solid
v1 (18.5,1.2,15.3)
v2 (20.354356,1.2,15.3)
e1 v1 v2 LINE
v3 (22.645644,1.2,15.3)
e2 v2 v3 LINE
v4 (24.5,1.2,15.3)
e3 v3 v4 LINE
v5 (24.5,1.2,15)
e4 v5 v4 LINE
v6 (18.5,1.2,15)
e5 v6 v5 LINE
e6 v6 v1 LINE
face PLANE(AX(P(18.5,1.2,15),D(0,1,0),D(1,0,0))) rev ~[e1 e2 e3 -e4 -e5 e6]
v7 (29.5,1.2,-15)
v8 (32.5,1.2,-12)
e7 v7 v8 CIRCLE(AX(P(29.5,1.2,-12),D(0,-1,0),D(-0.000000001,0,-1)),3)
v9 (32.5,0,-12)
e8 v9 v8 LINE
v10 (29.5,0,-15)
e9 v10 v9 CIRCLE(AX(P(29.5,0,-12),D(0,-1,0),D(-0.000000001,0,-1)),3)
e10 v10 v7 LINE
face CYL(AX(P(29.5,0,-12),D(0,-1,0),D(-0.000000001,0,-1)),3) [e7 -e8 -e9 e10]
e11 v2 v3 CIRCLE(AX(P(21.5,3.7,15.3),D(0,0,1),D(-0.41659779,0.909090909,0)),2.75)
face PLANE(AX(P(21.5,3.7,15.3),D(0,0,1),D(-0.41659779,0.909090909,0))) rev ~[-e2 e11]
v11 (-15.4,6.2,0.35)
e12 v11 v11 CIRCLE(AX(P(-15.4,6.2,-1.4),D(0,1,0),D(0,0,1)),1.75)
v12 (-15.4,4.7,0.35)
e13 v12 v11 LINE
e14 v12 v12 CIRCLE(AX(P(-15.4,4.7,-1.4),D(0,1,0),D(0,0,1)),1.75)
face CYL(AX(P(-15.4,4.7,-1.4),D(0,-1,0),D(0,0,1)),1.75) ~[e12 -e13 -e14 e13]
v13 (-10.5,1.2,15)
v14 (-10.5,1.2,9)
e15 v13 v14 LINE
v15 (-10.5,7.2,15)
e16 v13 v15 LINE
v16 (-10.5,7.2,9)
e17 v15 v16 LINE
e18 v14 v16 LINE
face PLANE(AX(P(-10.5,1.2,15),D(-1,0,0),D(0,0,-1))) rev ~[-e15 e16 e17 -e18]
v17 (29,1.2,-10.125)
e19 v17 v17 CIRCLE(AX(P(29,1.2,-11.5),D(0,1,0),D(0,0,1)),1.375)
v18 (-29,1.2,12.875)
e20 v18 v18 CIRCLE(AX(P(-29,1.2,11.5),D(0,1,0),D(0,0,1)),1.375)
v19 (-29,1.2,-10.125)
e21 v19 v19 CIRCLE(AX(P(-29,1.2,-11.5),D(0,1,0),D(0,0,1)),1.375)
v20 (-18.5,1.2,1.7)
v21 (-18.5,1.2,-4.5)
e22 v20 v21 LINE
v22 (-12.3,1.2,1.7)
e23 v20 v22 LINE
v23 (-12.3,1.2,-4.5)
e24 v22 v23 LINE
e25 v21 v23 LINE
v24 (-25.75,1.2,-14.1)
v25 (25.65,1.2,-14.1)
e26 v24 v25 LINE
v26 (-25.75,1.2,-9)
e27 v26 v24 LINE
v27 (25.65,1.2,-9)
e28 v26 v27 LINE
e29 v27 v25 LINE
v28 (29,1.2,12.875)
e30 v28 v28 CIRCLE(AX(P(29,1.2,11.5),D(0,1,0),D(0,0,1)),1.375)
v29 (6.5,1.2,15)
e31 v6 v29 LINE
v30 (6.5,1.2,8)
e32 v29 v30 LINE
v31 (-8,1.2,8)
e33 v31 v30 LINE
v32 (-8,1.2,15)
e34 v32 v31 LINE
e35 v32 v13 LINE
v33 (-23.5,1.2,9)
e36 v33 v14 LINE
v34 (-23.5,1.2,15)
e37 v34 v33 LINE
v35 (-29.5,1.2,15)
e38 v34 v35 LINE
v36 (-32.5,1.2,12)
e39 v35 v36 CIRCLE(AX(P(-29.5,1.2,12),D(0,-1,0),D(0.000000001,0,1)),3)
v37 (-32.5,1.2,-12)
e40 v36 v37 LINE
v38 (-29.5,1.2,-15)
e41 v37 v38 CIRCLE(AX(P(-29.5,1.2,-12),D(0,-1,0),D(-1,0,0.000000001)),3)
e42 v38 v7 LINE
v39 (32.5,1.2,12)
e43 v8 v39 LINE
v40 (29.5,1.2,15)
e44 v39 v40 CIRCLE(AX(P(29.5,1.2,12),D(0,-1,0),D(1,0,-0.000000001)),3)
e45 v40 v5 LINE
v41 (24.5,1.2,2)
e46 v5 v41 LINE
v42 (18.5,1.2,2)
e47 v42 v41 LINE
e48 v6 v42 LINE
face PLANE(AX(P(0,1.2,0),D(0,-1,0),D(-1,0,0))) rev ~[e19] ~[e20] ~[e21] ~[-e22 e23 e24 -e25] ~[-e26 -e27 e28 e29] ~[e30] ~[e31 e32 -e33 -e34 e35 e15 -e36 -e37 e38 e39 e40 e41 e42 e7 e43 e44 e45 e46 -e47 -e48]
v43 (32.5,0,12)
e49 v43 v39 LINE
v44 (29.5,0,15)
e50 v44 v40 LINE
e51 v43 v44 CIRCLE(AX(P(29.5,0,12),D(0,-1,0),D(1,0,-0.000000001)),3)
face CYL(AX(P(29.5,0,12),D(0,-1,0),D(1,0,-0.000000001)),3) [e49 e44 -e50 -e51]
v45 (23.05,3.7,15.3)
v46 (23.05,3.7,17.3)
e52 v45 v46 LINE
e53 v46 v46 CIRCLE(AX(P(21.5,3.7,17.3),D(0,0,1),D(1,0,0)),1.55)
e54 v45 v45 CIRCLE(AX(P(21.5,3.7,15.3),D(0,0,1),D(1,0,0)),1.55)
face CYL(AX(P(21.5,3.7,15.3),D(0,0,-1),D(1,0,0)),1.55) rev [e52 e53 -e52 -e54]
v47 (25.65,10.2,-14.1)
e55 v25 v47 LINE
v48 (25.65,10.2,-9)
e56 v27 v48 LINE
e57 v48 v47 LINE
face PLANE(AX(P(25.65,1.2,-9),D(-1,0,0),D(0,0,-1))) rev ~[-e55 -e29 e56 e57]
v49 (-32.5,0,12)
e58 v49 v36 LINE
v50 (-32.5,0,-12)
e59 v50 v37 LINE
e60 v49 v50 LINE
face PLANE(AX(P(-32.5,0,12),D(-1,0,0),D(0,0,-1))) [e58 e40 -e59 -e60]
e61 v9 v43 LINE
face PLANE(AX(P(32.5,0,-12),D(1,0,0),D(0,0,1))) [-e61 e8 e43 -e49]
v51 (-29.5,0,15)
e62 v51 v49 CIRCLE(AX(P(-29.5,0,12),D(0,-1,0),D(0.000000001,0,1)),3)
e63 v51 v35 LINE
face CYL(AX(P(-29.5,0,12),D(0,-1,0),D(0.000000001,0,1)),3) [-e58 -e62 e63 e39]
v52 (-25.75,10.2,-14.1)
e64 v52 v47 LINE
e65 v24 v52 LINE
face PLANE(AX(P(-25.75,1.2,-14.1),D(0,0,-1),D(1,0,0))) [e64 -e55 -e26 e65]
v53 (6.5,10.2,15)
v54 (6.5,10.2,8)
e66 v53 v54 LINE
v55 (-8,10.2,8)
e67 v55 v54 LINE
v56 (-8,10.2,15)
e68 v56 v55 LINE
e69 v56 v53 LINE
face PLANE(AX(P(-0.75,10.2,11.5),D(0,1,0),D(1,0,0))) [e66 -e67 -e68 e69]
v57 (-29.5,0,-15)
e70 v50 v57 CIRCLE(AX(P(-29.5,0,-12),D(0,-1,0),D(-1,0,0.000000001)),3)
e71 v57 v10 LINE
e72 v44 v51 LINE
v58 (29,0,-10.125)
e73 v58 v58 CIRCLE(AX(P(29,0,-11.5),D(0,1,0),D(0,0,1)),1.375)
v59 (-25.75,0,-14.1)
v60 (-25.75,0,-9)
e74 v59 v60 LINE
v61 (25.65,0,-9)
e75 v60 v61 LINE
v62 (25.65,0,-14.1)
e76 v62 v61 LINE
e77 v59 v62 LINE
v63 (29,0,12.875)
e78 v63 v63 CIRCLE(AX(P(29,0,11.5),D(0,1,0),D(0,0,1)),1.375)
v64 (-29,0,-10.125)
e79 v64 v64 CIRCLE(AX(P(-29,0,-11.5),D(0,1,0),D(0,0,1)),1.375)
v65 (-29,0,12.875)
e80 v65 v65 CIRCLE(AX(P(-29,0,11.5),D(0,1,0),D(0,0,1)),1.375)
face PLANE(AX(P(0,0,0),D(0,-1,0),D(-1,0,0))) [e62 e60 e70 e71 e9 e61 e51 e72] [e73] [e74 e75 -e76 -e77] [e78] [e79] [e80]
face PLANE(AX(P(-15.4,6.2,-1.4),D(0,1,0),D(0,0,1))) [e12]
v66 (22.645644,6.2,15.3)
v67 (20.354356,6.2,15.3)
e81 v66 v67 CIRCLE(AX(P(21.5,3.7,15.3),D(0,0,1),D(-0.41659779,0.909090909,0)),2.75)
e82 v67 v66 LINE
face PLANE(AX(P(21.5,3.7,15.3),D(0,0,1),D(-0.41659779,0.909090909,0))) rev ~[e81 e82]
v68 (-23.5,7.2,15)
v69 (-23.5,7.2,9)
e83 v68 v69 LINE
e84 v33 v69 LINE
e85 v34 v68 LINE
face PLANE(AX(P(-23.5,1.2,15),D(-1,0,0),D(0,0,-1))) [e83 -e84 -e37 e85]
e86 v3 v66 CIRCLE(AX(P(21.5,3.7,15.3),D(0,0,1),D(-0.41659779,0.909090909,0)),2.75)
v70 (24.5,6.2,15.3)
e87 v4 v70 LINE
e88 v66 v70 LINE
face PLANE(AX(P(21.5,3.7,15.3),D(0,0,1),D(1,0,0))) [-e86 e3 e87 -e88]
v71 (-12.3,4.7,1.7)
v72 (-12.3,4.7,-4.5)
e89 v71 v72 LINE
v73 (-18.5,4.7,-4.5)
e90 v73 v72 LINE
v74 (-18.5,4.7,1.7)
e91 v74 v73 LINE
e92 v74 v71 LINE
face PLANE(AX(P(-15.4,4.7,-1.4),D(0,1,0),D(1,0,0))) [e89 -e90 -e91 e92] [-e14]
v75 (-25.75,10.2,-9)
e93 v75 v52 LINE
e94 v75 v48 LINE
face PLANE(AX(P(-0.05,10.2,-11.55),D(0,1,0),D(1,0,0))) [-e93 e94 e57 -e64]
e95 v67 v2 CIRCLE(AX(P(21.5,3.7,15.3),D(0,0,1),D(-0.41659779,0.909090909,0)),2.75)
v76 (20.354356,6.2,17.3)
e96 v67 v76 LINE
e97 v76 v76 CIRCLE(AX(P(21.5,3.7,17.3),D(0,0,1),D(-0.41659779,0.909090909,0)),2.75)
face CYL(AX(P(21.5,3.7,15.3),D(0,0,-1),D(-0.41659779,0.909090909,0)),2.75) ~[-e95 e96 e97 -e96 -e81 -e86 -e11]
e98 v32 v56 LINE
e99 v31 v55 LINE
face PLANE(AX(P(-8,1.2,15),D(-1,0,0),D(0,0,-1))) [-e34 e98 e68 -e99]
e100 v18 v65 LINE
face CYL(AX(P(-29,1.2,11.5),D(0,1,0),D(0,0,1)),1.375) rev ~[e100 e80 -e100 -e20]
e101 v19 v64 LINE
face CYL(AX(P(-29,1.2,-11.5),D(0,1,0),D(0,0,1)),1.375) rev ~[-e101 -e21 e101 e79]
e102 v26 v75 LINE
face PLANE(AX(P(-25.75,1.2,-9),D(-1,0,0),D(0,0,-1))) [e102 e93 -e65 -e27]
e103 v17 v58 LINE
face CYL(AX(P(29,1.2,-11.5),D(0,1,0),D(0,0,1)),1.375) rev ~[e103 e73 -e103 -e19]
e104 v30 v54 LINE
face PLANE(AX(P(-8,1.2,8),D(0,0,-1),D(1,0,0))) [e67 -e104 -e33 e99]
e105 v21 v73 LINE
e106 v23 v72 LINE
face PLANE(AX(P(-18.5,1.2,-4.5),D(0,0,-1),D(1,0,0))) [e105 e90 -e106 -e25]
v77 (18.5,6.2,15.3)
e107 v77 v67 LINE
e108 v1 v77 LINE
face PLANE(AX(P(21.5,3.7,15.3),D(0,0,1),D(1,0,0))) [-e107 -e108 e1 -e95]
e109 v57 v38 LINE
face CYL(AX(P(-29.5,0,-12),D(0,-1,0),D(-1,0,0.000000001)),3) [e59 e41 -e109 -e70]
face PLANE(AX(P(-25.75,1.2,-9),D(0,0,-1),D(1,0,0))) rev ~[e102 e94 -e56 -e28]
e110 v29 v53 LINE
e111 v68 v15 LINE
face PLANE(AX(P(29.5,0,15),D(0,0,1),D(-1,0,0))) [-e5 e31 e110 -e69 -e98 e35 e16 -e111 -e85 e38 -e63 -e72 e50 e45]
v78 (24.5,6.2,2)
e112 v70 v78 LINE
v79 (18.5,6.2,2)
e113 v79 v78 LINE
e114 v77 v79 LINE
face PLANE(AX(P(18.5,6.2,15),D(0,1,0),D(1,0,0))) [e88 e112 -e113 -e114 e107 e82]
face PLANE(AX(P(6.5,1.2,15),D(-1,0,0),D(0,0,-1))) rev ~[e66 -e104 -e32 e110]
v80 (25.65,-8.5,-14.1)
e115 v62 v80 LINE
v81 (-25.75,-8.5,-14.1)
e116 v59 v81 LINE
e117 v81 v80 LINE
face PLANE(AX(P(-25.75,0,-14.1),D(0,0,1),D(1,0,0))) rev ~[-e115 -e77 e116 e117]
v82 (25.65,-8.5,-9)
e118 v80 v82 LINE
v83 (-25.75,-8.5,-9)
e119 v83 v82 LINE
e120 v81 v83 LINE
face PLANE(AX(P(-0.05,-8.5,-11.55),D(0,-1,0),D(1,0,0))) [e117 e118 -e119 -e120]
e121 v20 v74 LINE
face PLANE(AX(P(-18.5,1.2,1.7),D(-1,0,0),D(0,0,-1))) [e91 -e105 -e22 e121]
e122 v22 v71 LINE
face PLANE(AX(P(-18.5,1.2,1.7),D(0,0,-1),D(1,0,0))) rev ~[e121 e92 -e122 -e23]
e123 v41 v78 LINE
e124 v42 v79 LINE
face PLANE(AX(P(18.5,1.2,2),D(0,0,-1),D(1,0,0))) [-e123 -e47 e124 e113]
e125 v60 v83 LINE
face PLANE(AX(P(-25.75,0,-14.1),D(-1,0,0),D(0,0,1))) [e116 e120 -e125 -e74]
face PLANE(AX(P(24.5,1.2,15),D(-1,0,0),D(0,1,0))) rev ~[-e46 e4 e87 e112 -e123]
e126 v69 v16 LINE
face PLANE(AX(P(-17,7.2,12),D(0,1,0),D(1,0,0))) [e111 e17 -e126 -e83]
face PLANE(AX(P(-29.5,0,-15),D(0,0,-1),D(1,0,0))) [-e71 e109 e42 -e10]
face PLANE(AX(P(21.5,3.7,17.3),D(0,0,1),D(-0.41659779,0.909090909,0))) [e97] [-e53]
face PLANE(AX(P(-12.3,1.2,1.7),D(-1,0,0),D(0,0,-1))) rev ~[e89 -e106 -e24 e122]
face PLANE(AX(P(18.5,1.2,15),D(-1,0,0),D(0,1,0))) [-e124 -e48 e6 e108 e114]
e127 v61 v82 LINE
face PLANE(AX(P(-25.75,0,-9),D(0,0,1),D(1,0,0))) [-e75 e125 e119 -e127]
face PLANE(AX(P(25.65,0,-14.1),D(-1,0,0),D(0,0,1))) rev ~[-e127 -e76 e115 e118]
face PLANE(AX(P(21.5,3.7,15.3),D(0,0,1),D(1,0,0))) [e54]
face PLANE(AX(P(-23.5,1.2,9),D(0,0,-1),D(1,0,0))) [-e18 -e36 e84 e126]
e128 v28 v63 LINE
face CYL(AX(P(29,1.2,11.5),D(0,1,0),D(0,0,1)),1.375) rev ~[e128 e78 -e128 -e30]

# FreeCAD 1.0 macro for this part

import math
import FreeCAD as App
import Part
import Sketcher

V = App.Vector
Q = App.Units.Quantity


def add_polygon(sketch, points):
    """Adds a closed chain of lines whose ends are joined by coincident constraints."""
    first, n = sketch.GeometryCount, len(points)
    for a, b in zip(points, points[1:] + points[:1]):
        sketch.addGeometry(Part.LineSegment(App.Vector(*a, 0), App.Vector(*b, 0)), False)
    for i in range(n):
        sketch.addConstraint(Sketcher.Constraint("Coincident", first + i, 2, first + (i + 1) % n, 1))

doc = App.newDocument("Part")
body = doc.addObject("PartDesign::Body", "Body")

# Sketch on XZ plane
sketch1 = body.newObject("Sketcher::SketchObject", "Sketch")
sketch1.AttachmentSupport = (doc.getObject("XZ_Plane"), [""])
sketch1.MapMode = "FlatFace"
sketch1.addGeometry([
    Part.LineSegment(V(29.5, -15, 0), V(-29.5, -15, 0)),  # 0
    Part.ArcOfCircle(Part.Circle(V(-29.5, -12, 0), V(0, 0, 1), 3), math.radians(180), math.radians(270)),  # 1
    Part.LineSegment(V(-32.5, -12, 0), V(-32.5, 12, 0)),  # 2
    Part.ArcOfCircle(Part.Circle(V(-29.5, 12, 0), V(0, 0, 1), 3), math.radians(90), math.radians(180)),  # 3
    Part.LineSegment(V(-29.5, 15, 0), V(29.5, 15, 0)),  # 4
    Part.ArcOfCircle(Part.Circle(V(29.5, 12, 0), V(0, 0, 1), 3), math.radians(0), math.radians(90)),  # 5
    Part.LineSegment(V(32.5, 12, 0), V(32.5, -12, 0)),  # 6
    Part.ArcOfCircle(Part.Circle(V(29.5, -12, 0), V(0, 0, 1), 3), math.radians(-90), math.radians(0)),  # 7
], False)
sketch1.addConstraint([
    Sketcher.Constraint("Tangent", 0, 2, 1, 2),
    Sketcher.Constraint("Tangent", 1, 1, 2, 1),
    Sketcher.Constraint("Tangent", 2, 2, 3, 2),
    Sketcher.Constraint("Tangent", 3, 1, 4, 1),
    Sketcher.Constraint("Tangent", 4, 2, 5, 2),
    Sketcher.Constraint("Tangent", 5, 1, 6, 1),
    Sketcher.Constraint("Tangent", 6, 2, 7, 2),
    Sketcher.Constraint("Tangent", 7, 1, 0, 1),
    Sketcher.Constraint("Horizontal", 0),
    Sketcher.Constraint("Vertical", 2),
    Sketcher.Constraint("Horizontal", 4),
    Sketcher.Constraint("Vertical", 6),
    Sketcher.Constraint("Equal", 1, 3),
    Sketcher.Constraint("Equal", 3, 5),
    Sketcher.Constraint("Equal", 5, 7),
    Sketcher.Constraint("Symmetric", 1, 3, 5, 3, -1, 1),
    Sketcher.Constraint("Radius", 1, Q("3 mm")),
    Sketcher.Constraint("DistanceX", 0, 2, 0, 1, Q("59 mm")),
    Sketcher.Constraint("DistanceY", 2, 1, 2, 2, Q("24 mm")),
])
pad1 = body.newObject("PartDesign::Pad", "Pad")
pad1.Profile = sketch1
pad1.Length = 1.2
pad1.Reversed = True

# Sketch on XZ plane
sketch2 = body.newObject("Sketcher::SketchObject", "Sketch001")
sketch2.AttachmentSupport = (doc.getObject("XZ_Plane"), [""])
sketch2.MapMode = "FlatFace"
sketch2.AttachmentOffset = App.Placement(V(0, 0, -1.2), App.Rotation())
sketch2.addGeometry([
    Part.Circle(V(29, 11.5, 0), V(0, 0, 1), 1.4),
    Part.Circle(V(29, -11.5, 0), V(0, 0, 1), 1.4),
    Part.Circle(V(-29, 11.5, 0), V(0, 0, 1), 1.4),
    Part.Circle(V(-29, -11.5, 0), V(0, 0, 1), 1.4),
], False)
sketch2.addConstraint([
    Sketcher.Constraint("Equal", 0, 1),
    Sketcher.Constraint("Equal", 1, 2),
    Sketcher.Constraint("Equal", 2, 3),
    Sketcher.Constraint("Symmetric", 1, 3, 2, 3, -1, 1),
    Sketcher.Constraint("Symmetric", 0, 3, 3, 3, -1, 1),
    Sketcher.Constraint("Symmetric", 0, 3, 2, 3, -2),
    Sketcher.Constraint("Diameter", 0, Q("2.75 mm")),
    Sketcher.Constraint("DistanceX", -1, 1, 0, 3, Q("29 mm")),
    Sketcher.Constraint("DistanceY", 1, 3, 0, 3, Q("23 mm")),
])
pocket1 = body.newObject("PartDesign::Pocket", "Pocket")
pocket1.Profile = sketch2
pocket1.Length = 1.2
pocket1.Reversed = True

# Sketch on XZ plane
sketch3 = body.newObject("Sketcher::SketchObject", "Sketch002")
sketch3.AttachmentSupport = (doc.getObject("XZ_Plane"), [""])
sketch3.MapMode = "FlatFace"
sketch3.AttachmentOffset = App.Placement(V(0, 0, -1.2), App.Rotation())
add_polygon(sketch3, [(18, 2), (18, 15), (24, 15), (24, 2)])  # lines 0-3
sketch3.addConstraint([
    Sketcher.Constraint("Vertical", 0),
    Sketcher.Constraint("Horizontal", 1),
    Sketcher.Constraint("Vertical", 2),
    Sketcher.Constraint("Horizontal", 3),
    Sketcher.Constraint("DistanceX", 1, 1, 1, 2, Q("6 mm")),
    Sketcher.Constraint("DistanceY", 0, 1, 0, 2, Q("13 mm")),
    Sketcher.Constraint("DistanceY", -1, 1, 0, 2, Q("15 mm")),
    Sketcher.Constraint("DistanceX", -1, 1, 0, 2, Q("18.5 mm")),
])
pad2 = body.newObject("PartDesign::Pad", "Pad001")
pad2.Profile = sketch3
pad2.Length = 5
pad2.Reversed = True

# Sketch on XY plane
sketch4 = body.newObject("Sketcher::SketchObject", "Sketch003")
sketch4.AttachmentSupport = (doc.getObject("XY_Plane"), [""])
sketch4.MapMode = "FlatFace"
sketch4.AttachmentOffset = App.Placement(V(0, 0, 15), App.Rotation())
add_polygon(sketch4, [(18, 6), (18, 1), (24, 1), (24, 6)])  # lines 0-3
sketch4.addConstraint([
    Sketcher.Constraint("Vertical", 0),
    Sketcher.Constraint("Horizontal", 1),
    Sketcher.Constraint("Vertical", 2),
    Sketcher.Constraint("Horizontal", 3),
    Sketcher.Constraint("DistanceX", 1, 1, 1, 2, Q("6 mm")),
    Sketcher.Constraint("DistanceY", 0, 2, 0, 1, Q("5 mm")),
    Sketcher.Constraint("DistanceX", -1, 1, 0, 2, Q("18.5 mm")),
    Sketcher.Constraint("DistanceY", -1, 1, 0, 2, Q("1.2 mm")),
])
pad3 = body.newObject("PartDesign::Pad", "Pad002")
pad3.Profile = sketch4
pad3.Length = 0.3

# Sketch on XZ plane
sketch5 = body.newObject("Sketcher::SketchObject", "Sketch004")
sketch5.AttachmentSupport = (doc.getObject("XZ_Plane"), [""])
sketch5.MapMode = "FlatFace"
sketch5.AttachmentOffset = App.Placement(V(0, 0, -1.2), App.Rotation())
add_polygon(sketch5, [(-8, 8), (-8, 15), (6, 15), (6, 8)])  # lines 0-3
sketch5.addConstraint([
    Sketcher.Constraint("Vertical", 0),
    Sketcher.Constraint("Horizontal", 1),
    Sketcher.Constraint("Vertical", 2),
    Sketcher.Constraint("Horizontal", 3),
    Sketcher.Constraint("DistanceY", 0, 1, 0, 2, Q("7 mm")),
    Sketcher.Constraint("DistanceX", 1, 1, 1, 2, Q("14.5 mm")),
    Sketcher.Constraint("DistanceX", 0, 2, -1, 1, Q("8 mm")),
    Sketcher.Constraint("DistanceY", -1, 1, 0, 2, Q("15 mm")),
])
pad4 = body.newObject("PartDesign::Pad", "Pad003")
pad4.Profile = sketch5
pad4.Length = 9
pad4.Reversed = True

# Sketch on XZ plane
sketch6 = body.newObject("Sketcher::SketchObject", "Sketch005")
sketch6.AttachmentSupport = (doc.getObject("XZ_Plane"), [""])
sketch6.MapMode = "FlatFace"
sketch6.AttachmentOffset = App.Placement(V(0, 0, -1.2), App.Rotation())
add_polygon(sketch6, [(-24, 9), (-24, 15), (-10, 15), (-10, 9)])  # lines 0-3
sketch6.addConstraint([
    Sketcher.Constraint("Vertical", 0),
    Sketcher.Constraint("Horizontal", 1),
    Sketcher.Constraint("Vertical", 2),
    Sketcher.Constraint("Horizontal", 3),
    Sketcher.Constraint("DistanceX", 1, 1, 1, 2, Q("13 mm")),
    Sketcher.Constraint("DistanceY", 0, 1, 0, 2, Q("6 mm")),
    Sketcher.Constraint("DistanceY", -1, 1, 0, 2, Q("15 mm")),
    Sketcher.Constraint("DistanceX", 0, 2, -1, 1, Q("23.5 mm")),
])
pad5 = body.newObject("PartDesign::Pad", "Pad004")
pad5.Profile = sketch6
pad5.Length = 6
pad5.Reversed = True

# Sketch on XZ plane
sketch7 = body.newObject("Sketcher::SketchObject", "Sketch006")
sketch7.AttachmentSupport = (doc.getObject("XZ_Plane"), [""])
sketch7.MapMode = "FlatFace"
add_polygon(sketch7, [(-26, -9), (-26, -14), (26, -14), (26, -9)])  # lines 0-3
sketch7.addConstraint([
    Sketcher.Constraint("Vertical", 0),
    Sketcher.Constraint("Horizontal", 1),
    Sketcher.Constraint("Vertical", 2),
    Sketcher.Constraint("Horizontal", 3),
    Sketcher.Constraint("DistanceX", 1, 1, 1, 2, Q("51.4 mm")),
    Sketcher.Constraint("DistanceY", 0, 2, 0, 1, Q("5.1 mm")),
    Sketcher.Constraint("DistanceY", 2, 2, -1, 1, Q("9 mm")),
    Sketcher.Constraint("DistanceX", 0, 2, -1, 1, Q("25.75 mm")),
])
pad6 = body.newObject("PartDesign::Pad", "Pad005")
pad6.Profile = sketch7
pad6.Length = 8.5

# Sketch on XZ plane
sketch8 = body.newObject("Sketcher::SketchObject", "Sketch007")
sketch8.AttachmentSupport = (doc.getObject("XZ_Plane"), [""])
sketch8.MapMode = "FlatFace"
sketch8.AttachmentOffset = App.Placement(V(0, 0, -1.2), App.Rotation())
add_polygon(sketch8, [(-18, -4), (-18, 2), (-12, 2), (-12, -4)])  # lines 0-3
sketch8.addConstraint([
    Sketcher.Constraint("Vertical", 0),
    Sketcher.Constraint("Horizontal", 1),
    Sketcher.Constraint("Vertical", 2),
    Sketcher.Constraint("Horizontal", 3),
    Sketcher.Constraint("Equal", 3, 0),
    Sketcher.Constraint("DistanceX", 1, 1, 1, 2, Q("6.2 mm")),
    Sketcher.Constraint("DistanceX", 0, 2, -1, 1, Q("18.5 mm")),
    Sketcher.Constraint("DistanceY", -1, 1, 0, 2, Q("1.7 mm")),
])
pad7 = body.newObject("PartDesign::Pad", "Pad006")
pad7.Profile = sketch8
pad7.Length = 3.5
pad7.Reversed = True

# Sketch on XZ plane
sketch9 = body.newObject("Sketcher::SketchObject", "Sketch008")
sketch9.AttachmentSupport = (doc.getObject("XZ_Plane"), [""])
sketch9.MapMode = "FlatFace"
sketch9.AttachmentOffset = App.Placement(V(0, 0, -4.7), App.Rotation())
sketch9.addGeometry(Part.Circle(V(-15.4, -1.4, 0), V(0, 0, 1), 1.8), False)
sketch9.addConstraint([
    Sketcher.Constraint("Diameter", 0, Q("3.5 mm")),
    Sketcher.Constraint("DistanceX", 0, 3, -1, 1, Q("15.4 mm")),
    Sketcher.Constraint("DistanceY", 0, 3, -1, 1, Q("1.4 mm")),
])
pad8 = body.newObject("PartDesign::Pad", "Pad007")
pad8.Profile = sketch9
pad8.Length = 1.5
pad8.Reversed = True

# Sketch on XY plane
sketch10 = body.newObject("Sketcher::SketchObject", "Sketch009")
sketch10.AttachmentSupport = (doc.getObject("XY_Plane"), [""])
sketch10.MapMode = "FlatFace"
sketch10.AttachmentOffset = App.Placement(V(0, 0, 15.3), App.Rotation())
sketch10.addGeometry([
    Part.Circle(V(21.5, 3.7, 0), V(0, 0, 1), 2.8),
    Part.Circle(V(21.5, 3.7, 0), V(0, 0, 1), 1.6),
], False)
sketch10.addConstraint([
    Sketcher.Constraint("Coincident", 1, 3, 0, 3),
    Sketcher.Constraint("Diameter", 0, Q("5.5 mm")),
    Sketcher.Constraint("Diameter", 1, Q("3.1 mm")),
    Sketcher.Constraint("DistanceX", -1, 1, 0, 3, Q("21.5 mm")),
    Sketcher.Constraint("DistanceY", -1, 1, 0, 3, Q("3.7 mm")),
])
pad9 = body.newObject("PartDesign::Pad", "Pad008")
pad9.Profile = sketch10
pad9.Length = 2

# Sketch on XZ plane
sketch11 = body.newObject("Sketcher::SketchObject", "Sketch010")
sketch11.AttachmentSupport = (doc.getObject("XZ_Plane"), [""])
sketch11.MapMode = "FlatFace"
sketch11.AttachmentOffset = App.Placement(V(0, 0, -1.2), App.Rotation())
add_polygon(sketch11, [(-26, -14), (-26, -9), (26, -9), (26, -14)])  # lines 0-3
sketch11.addConstraint([
    Sketcher.Constraint("Vertical", 0),
    Sketcher.Constraint("Horizontal", 1),
    Sketcher.Constraint("Vertical", 2),
    Sketcher.Constraint("Horizontal", 3),
    Sketcher.Constraint("DistanceX", 1, 1, 1, 2, Q("51.4 mm")),
    Sketcher.Constraint("DistanceY", 0, 1, 0, 2, Q("5.1 mm")),
    Sketcher.Constraint("DistanceY", 0, 2, -1, 1, Q("9 mm")),
    Sketcher.Constraint("DistanceX", 0, 2, -1, 1, Q("25.75 mm")),
])
pad10 = body.newObject("PartDesign::Pad", "Pad009")
pad10.Profile = sketch11
pad10.Length = 9
pad10.Reversed = True

doc.recompute()
